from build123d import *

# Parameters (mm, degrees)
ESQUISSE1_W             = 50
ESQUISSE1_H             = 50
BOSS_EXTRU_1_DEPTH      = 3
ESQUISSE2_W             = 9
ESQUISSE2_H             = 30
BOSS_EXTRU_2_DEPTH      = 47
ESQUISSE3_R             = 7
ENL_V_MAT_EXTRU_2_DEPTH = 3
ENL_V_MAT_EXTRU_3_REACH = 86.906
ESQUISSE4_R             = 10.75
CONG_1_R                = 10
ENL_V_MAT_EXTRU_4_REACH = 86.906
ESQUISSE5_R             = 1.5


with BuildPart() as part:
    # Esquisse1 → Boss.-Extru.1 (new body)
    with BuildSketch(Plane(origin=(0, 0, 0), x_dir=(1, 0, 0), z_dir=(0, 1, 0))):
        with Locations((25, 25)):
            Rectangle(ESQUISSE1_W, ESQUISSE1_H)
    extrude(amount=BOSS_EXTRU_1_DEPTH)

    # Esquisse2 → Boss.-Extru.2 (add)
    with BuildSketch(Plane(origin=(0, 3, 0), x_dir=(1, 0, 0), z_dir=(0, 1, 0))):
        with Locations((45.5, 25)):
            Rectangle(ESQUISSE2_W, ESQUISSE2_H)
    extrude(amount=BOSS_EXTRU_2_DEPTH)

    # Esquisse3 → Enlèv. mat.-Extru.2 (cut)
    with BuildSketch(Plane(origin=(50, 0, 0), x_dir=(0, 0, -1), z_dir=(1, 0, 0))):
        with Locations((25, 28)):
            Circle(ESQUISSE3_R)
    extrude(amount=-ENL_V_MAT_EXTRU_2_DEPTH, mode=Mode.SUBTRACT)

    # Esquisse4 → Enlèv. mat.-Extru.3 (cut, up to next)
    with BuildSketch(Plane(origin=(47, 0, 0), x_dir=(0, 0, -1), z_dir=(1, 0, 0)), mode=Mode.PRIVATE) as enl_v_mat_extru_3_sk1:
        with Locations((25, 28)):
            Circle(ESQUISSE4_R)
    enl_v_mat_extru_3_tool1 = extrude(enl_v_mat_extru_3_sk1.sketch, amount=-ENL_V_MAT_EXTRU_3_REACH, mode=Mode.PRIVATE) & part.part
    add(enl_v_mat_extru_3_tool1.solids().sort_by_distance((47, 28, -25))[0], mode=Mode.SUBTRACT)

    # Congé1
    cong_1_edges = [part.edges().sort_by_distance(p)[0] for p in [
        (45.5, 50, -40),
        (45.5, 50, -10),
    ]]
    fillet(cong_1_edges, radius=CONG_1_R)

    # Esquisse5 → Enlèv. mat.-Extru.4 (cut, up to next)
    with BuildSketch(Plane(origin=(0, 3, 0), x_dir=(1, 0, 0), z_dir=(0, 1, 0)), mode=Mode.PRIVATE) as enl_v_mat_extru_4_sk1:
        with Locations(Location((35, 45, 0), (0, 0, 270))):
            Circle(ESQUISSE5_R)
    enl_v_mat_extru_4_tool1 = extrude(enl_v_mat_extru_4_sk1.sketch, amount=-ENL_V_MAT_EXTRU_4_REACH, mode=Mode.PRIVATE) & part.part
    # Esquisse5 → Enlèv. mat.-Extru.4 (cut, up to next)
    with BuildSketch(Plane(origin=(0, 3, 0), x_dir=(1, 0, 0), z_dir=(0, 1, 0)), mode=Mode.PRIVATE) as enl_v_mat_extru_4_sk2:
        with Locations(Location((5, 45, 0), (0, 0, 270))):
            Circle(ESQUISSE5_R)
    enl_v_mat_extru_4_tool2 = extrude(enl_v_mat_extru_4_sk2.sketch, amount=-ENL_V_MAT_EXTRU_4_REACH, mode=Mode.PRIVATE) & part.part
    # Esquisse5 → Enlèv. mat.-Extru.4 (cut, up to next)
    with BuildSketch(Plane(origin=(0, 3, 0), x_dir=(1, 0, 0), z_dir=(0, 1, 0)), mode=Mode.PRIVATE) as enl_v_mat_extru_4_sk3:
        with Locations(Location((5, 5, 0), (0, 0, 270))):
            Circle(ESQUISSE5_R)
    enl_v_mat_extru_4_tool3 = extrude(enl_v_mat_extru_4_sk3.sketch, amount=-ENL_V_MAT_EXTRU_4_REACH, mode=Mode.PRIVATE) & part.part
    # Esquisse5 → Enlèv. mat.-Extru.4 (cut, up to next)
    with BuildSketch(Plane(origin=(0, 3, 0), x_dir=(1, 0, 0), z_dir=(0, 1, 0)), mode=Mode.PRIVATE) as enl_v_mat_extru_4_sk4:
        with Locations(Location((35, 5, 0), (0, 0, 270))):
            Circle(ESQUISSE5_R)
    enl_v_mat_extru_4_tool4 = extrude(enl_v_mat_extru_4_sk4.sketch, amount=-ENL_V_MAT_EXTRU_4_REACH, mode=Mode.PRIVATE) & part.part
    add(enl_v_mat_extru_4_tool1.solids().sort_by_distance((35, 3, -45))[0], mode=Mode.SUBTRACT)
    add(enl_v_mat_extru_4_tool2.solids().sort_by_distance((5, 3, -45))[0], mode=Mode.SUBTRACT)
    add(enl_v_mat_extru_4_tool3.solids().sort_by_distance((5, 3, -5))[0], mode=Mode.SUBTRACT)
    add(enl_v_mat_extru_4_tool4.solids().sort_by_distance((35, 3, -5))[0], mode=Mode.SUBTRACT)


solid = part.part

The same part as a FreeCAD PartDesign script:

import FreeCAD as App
import Part
import Sketcher
from FreeCAD import Vector


def edges_at(feature, points):
    """Names of the edges that pass closest to the given points."""
    edges = feature.Shape.Edges
    near = lambda p: min(range(len(edges)), key=lambda i: edges[i].distToShape(Part.Vertex(*p))[0])
    return sorted({f"Edge{near(p) + 1}" for p in points})

doc = App.newDocument("Part")
body = doc.addObject("PartDesign::Body", "Body")

# Sketch on XZ plane
sketch1 = body.newObject("Sketcher::SketchObject", "Sketch")
sketch1.AttachmentSupport = (doc.getObject("XZ_Plane"), [""])
sketch1.MapMode = "FlatFace"
sketch1.addGeometry([
    Part.LineSegment(Vector(0, -50, 0), Vector(0, 0, 0)),
    Part.LineSegment(Vector(0, 0, 0), Vector(50, 0, 0)),
    Part.LineSegment(Vector(50, 0, 0), Vector(50, -50, 0)),
    Part.LineSegment(Vector(50, -50, 0), Vector(0, -50, 0)),
], False)
sketch1.addConstraint([
    Sketcher.Constraint("Coincident", 0, 2, 1, 1),
    Sketcher.Constraint("Coincident", 1, 2, 2, 1),
    Sketcher.Constraint("Coincident", 2, 2, 3, 1),
    Sketcher.Constraint("Coincident", 3, 2, 0, 1),
    Sketcher.Constraint("Vertical", 0),
    Sketcher.Constraint("Horizontal", 1),
    Sketcher.Constraint("Vertical", 2),
    Sketcher.Constraint("Horizontal", 3),
    Sketcher.Constraint("Coincident", 0, 2, -1, 1),
    Sketcher.Constraint("Equal", 3, 0),
    Sketcher.Constraint("DistanceX", 1, 1, 1, 2, 50.0),
])
pad1 = body.newObject("PartDesign::Pad", "Pad")
pad1.Profile = sketch1
pad1.Length = 3
pad1.Reversed = True

# Sketch on XZ plane
sketch2 = body.newObject("Sketcher::SketchObject", "Sketch001")
sketch2.AttachmentSupport = (doc.getObject("XZ_Plane"), [""])
sketch2.MapMode = "FlatFace"
sketch2.AttachmentOffset = App.Placement(Vector(0, 0, -3), App.Rotation())
sketch2.addGeometry([
    Part.LineSegment(Vector(41, -40, 0), Vector(41, -10, 0)),
    Part.LineSegment(Vector(41, -10, 0), Vector(50, -10, 0)),
    Part.LineSegment(Vector(50, -10, 0), Vector(50, -40, 0)),
    Part.LineSegment(Vector(50, -40, 0), Vector(41, -40, 0)),
], False)
sketch2.addConstraint([
    Sketcher.Constraint("Coincident", 0, 2, 1, 1),
    Sketcher.Constraint("Coincident", 1, 2, 2, 1),
    Sketcher.Constraint("Coincident", 2, 2, 3, 1),
    Sketcher.Constraint("Coincident", 3, 2, 0, 1),
    Sketcher.Constraint("Vertical", 0),
    Sketcher.Constraint("Horizontal", 1),
    Sketcher.Constraint("Vertical", 2),
    Sketcher.Constraint("Horizontal", 3),
    Sketcher.Constraint("DistanceX", 1, 1, 1, 2, 9.0),
    Sketcher.Constraint("DistanceY", 0, 1, 0, 2, 30.0),
    Sketcher.Constraint("DistanceX", -1, 1, 0, 2, 41.0),
    Sketcher.Constraint("DistanceY", 0, 2, -1, 1, 10.0),
])
pad2 = body.newObject("PartDesign::Pad", "Pad001")
pad2.Profile = sketch2
pad2.Length = 47
pad2.Reversed = True

# Sketch on YZ plane
sketch3 = body.newObject("Sketcher::SketchObject", "Sketch002")
sketch3.AttachmentSupport = (doc.getObject("YZ_Plane"), [""])
sketch3.MapMode = "FlatFace"
sketch3.AttachmentOffset = App.Placement(Vector(0, 0, 50), App.Rotation())
sketch3.addGeometry(Part.Circle(Vector(28, -25, 0), Vector(0, 0, 1), 7), False)
sketch3.addConstraint([
    Sketcher.Constraint("Diameter", 0, 14.0),
    Sketcher.Constraint("DistanceX", -1, 1, 0, 3, 28.0),
    Sketcher.Constraint("DistanceY", 0, 3, -1, 1, 25.0),
])
pocket1 = body.newObject("PartDesign::Pocket", "Pocket")
pocket1.Profile = sketch3
pocket1.Length = 3

# Sketch on YZ plane
sketch4 = body.newObject("Sketcher::SketchObject", "Sketch003")
sketch4.AttachmentSupport = (doc.getObject("YZ_Plane"), [""])
sketch4.MapMode = "FlatFace"
sketch4.AttachmentOffset = App.Placement(Vector(0, 0, 47), App.Rotation())
sketch4.addGeometry(Part.Circle(Vector(28, -25, 0), Vector(0, 0, 1), 10.75), False)
sketch4.addConstraint([
    Sketcher.Constraint("Diameter", 0, 21.5),
    Sketcher.Constraint("DistanceX", -1, 1, 0, 3, 28.0),
    Sketcher.Constraint("DistanceY", 0, 3, -1, 1, 25.0),
])
pocket2 = body.newObject("PartDesign::Pocket", "Pocket001")
pocket2.Profile = sketch4
pocket2.Type = "UpToFirst"
doc.recompute()

fillet = body.newObject("PartDesign::Fillet", "Fillet")
fillet.Base = (pocket2, edges_at(pocket2, [(45.5, 50, -40), (45.5, 50, -10)]))
fillet.Radius = 10

# Sketch on XZ plane
sketch5 = body.newObject("Sketcher::SketchObject", "Sketch004")
sketch5.AttachmentSupport = (doc.getObject("XZ_Plane"), [""])
sketch5.MapMode = "FlatFace"
sketch5.AttachmentOffset = App.Placement(Vector(0, 0, -3), App.Rotation())
sketch5.addGeometry(Part.Circle(Vector(35, -45, 0), Vector(0, 0, 1), 1.5), False)
sketch5.addConstraint([
    Sketcher.Constraint("Diameter", 0, 3.0),
    Sketcher.Constraint("DistanceX", -1, 1, 0, 3, 35.0),
    Sketcher.Constraint("DistanceY", 0, 3, -1, 1, 45.0),
])
pocket3 = body.newObject("PartDesign::Pocket", "Pocket002")
pocket3.Profile = sketch5
pocket3.Type = "UpToFirst"
pocket3.Reversed = True

# Sketch on XZ plane
sketch6 = body.newObject("Sketcher::SketchObject", "Sketch005")
sketch6.AttachmentSupport = (doc.getObject("XZ_Plane"), [""])
sketch6.MapMode = "FlatFace"
sketch6.AttachmentOffset = App.Placement(Vector(0, 0, -3), App.Rotation())
sketch6.addGeometry(Part.Circle(Vector(5, -45, 0), Vector(0, 0, 1), 1.5), False)
sketch6.addConstraint([
    Sketcher.Constraint("Diameter", 0, 3.0),
    Sketcher.Constraint("DistanceX", -1, 1, 0, 3, 5.0),
    Sketcher.Constraint("DistanceY", 0, 3, -1, 1, 45.0),
])
pocket4 = body.newObject("PartDesign::Pocket", "Pocket003")
pocket4.Profile = sketch6
pocket4.Type = "UpToFirst"
pocket4.Reversed = True

# Sketch on XZ plane
sketch7 = body.newObject("Sketcher::SketchObject", "Sketch006")
sketch7.AttachmentSupport = (doc.getObject("XZ_Plane"), [""])
sketch7.MapMode = "FlatFace"
sketch7.AttachmentOffset = App.Placement(Vector(0, 0, -3), App.Rotation())
sketch7.addGeometry(Part.Circle(Vector(5, -5, 0), Vector(0, 0, 1), 1.5), False)
sketch7.addConstraint([
    Sketcher.Constraint("Diameter", 0, 3.0),
    Sketcher.Constraint("DistanceX", -1, 1, 0, 3, 5.0),
    Sketcher.Constraint("DistanceY", 0, 3, -1, 1, 5.0),
])
pocket5 = body.newObject("PartDesign::Pocket", "Pocket004")
pocket5.Profile = sketch7
pocket5.Type = "UpToFirst"
pocket5.Reversed = True

# Sketch on XZ plane
sketch8 = body.newObject("Sketcher::SketchObject", "Sketch007")
sketch8.AttachmentSupport = (doc.getObject("XZ_Plane"), [""])
sketch8.MapMode = "FlatFace"
sketch8.AttachmentOffset = App.Placement(Vector(0, 0, -3), App.Rotation())
sketch8.addGeometry(Part.Circle(Vector(35, -5, 0), Vector(0, 0, 1), 1.5), False)
sketch8.addConstraint([
    Sketcher.Constraint("Diameter", 0, 3.0),
    Sketcher.Constraint("DistanceX", -1, 1, 0, 3, 35.0),
    Sketcher.Constraint("DistanceY", 0, 3, -1, 1, 5.0),
])
pocket6 = body.newObject("PartDesign::Pocket", "Pocket005")
pocket6.Profile = sketch8
pocket6.Type = "UpToFirst"
pocket6.Reversed = True

doc.recompute()
